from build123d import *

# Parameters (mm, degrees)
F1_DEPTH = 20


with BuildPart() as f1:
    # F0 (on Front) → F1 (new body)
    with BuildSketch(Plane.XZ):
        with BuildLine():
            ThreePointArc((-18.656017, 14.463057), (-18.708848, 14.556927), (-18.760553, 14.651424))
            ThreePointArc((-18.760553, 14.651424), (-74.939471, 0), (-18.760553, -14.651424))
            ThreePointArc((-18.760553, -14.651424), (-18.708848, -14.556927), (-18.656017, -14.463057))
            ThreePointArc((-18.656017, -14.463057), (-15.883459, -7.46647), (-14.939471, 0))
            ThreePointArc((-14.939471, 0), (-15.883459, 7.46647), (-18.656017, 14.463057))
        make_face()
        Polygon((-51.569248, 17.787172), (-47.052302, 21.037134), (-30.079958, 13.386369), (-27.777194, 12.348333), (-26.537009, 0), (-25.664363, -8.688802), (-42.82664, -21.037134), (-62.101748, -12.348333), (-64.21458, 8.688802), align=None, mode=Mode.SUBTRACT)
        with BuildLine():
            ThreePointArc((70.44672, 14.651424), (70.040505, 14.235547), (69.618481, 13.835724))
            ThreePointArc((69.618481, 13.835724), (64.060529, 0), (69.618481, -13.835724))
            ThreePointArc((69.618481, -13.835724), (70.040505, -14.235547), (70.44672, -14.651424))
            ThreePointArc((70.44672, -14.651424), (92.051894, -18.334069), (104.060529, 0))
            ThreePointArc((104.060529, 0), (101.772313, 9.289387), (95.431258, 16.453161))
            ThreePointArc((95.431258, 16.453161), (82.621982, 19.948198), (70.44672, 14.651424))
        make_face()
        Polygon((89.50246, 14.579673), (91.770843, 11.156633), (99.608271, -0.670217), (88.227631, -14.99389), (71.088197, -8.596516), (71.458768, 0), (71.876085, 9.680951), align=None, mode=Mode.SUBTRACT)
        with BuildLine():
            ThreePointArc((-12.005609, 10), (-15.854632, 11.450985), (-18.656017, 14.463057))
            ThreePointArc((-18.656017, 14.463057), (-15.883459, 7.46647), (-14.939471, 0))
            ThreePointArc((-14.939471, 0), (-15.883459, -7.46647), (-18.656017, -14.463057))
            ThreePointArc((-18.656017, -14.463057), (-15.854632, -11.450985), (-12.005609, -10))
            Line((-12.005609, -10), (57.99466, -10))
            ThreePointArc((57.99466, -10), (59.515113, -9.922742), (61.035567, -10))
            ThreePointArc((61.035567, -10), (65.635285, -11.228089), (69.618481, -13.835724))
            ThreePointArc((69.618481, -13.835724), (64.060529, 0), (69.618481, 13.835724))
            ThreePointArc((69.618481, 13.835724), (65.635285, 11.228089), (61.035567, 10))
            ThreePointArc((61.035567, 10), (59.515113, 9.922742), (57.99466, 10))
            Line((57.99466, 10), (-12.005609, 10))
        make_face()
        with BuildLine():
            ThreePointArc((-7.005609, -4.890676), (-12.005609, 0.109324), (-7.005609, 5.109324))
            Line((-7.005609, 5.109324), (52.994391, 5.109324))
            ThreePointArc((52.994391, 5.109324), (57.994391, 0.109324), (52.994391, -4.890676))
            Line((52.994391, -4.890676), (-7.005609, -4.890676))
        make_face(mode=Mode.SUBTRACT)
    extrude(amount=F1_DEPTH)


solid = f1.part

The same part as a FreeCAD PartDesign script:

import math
import FreeCAD as App
import Part
import Sketcher

doc = App.newDocument("Part")
body = doc.addObject("PartDesign::Body", "Body")

# Sketch on XZ plane
sketch1 = body.newObject("Sketcher::SketchObject", "Sketch")
sketch1.AttachmentSupport = (doc.getObject("XZ_Plane"), [""])
sketch1.MapMode = "FlatFace"
sketch1.addGeometry([
    Part.ArcOfCircle(Part.Circle(App.Vector(-10.84, 18.93, 0), App.Vector(0, 0, 1), 9), math.radians(-151.66), math.radians(-150.29)),  # 0
    Part.ArcOfCircle(Part.Circle(App.Vector(-44.94, 0, 0), App.Vector(0, 0, 1), 30), math.radians(29), math.radians(331)),  # 1
    Part.ArcOfCircle(Part.Circle(App.Vector(-10.84, -18.93, 0), App.Vector(0, 0, 1), 9), math.radians(150.29), math.radians(151.66)),  # 2
    Part.ArcOfCircle(Part.Circle(App.Vector(-10.84, -18.92, 0), App.Vector(0, 0, 1), 9), math.radians(97), math.radians(150)),  # 3
    Part.LineSegment(App.Vector(-12.01, -10, 0), App.Vector(57.99, -10, 0)),  # 4
    Part.ArcOfCircle(Part.Circle(App.Vector(59.52, -24.92, 0), App.Vector(0, 0, 1), 15), math.radians(84.18), math.radians(95.82)),  # 5
    Part.ArcOfCircle(Part.Circle(App.Vector(59.52, -24.92, 0), App.Vector(0, 0, 1), 15), math.radians(48), math.radians(84)),  # 6
    Part.ArcOfCircle(Part.Circle(App.Vector(59.52, -24.92, 0), App.Vector(0, 0, 1), 15), math.radians(43.22), math.radians(47.66)),  # 7
    Part.ArcOfCircle(Part.Circle(App.Vector(84.06, 0, 0), App.Vector(0, 0, 1), 20), math.radians(-133), math.radians(0)),  # 8
    Part.ArcOfCircle(Part.Circle(App.Vector(84.06, 0, 0), App.Vector(0, 0, 1), 20), math.radians(0), math.radians(55)),  # 9
    Part.ArcOfCircle(Part.Circle(App.Vector(84.06, 0, 0), App.Vector(0, 0, 1), 20), math.radians(55), math.radians(133)),  # 10
    Part.ArcOfCircle(Part.Circle(App.Vector(59.52, 24.92, 0), App.Vector(0, 0, 1), 15), math.radians(-47.66), math.radians(-43.22)),  # 11
    Part.ArcOfCircle(Part.Circle(App.Vector(59.52, 24.92, 0), App.Vector(0, 0, 1), 15), math.radians(-84), math.radians(-48)),  # 12
    Part.ArcOfCircle(Part.Circle(App.Vector(59.52, 24.92, 0), App.Vector(0, 0, 1), 15), math.radians(-95.82), math.radians(-84.18)),  # 13
    Part.LineSegment(App.Vector(57.99, 10, 0), App.Vector(-12.01, 10, 0)),  # 14
    Part.ArcOfCircle(Part.Circle(App.Vector(-10.84, 18.92, 0), App.Vector(0, 0, 1), 9), math.radians(-150), math.radians(-97)),  # 15
    Part.LineSegment(App.Vector(89.5, 14.58, 0), App.Vector(91.77, 11.16, 0)),  # 16
    Part.LineSegment(App.Vector(91.77, 11.16, 0), App.Vector(99.61, -0.67, 0)),  # 17
    Part.LineSegment(App.Vector(99.61, -0.67, 0), App.Vector(88.23, -14.99, 0)),  # 18
    Part.LineSegment(App.Vector(88.23, -14.99, 0), App.Vector(71.09, -8.6, 0)),  # 19
    Part.LineSegment(App.Vector(71.09, -8.6, 0), App.Vector(71.46, 0, 0)),  # 20
    Part.LineSegment(App.Vector(71.46, 0, 0), App.Vector(71.88, 9.68, 0)),  # 21
    Part.LineSegment(App.Vector(71.88, 9.68, 0), App.Vector(89.5, 14.58, 0)),  # 22
    Part.LineSegment(App.Vector(-64.21, 8.69, 0), App.Vector(-51.57, 17.79, 0)),  # 23
    Part.LineSegment(App.Vector(-51.57, 17.79, 0), App.Vector(-47.05, 21.04, 0)),  # 24
    Part.LineSegment(App.Vector(-47.05, 21.04, 0), App.Vector(-30.08, 13.39, 0)),  # 25
    Part.LineSegment(App.Vector(-30.08, 13.39, 0), App.Vector(-27.78, 12.35, 0)),  # 26
    Part.LineSegment(App.Vector(-27.78, 12.35, 0), App.Vector(-26.54, 0, 0)),  # 27
    Part.LineSegment(App.Vector(-26.54, 0, 0), App.Vector(-25.66, -8.69, 0)),  # 28
    Part.LineSegment(App.Vector(-25.66, -8.69, 0), App.Vector(-42.83, -21.04, 0)),  # 29
    Part.LineSegment(App.Vector(-42.83, -21.04, 0), App.Vector(-62.1, -12.35, 0)),  # 30
    Part.LineSegment(App.Vector(-62.1, -12.35, 0), App.Vector(-64.21, 8.69, 0)),  # 31
    Part.LineSegment(App.Vector(52.99, -4.89, 0), App.Vector(-7.01, -4.89, 0)),  # 32
    Part.ArcOfCircle(Part.Circle(App.Vector(-7.01, 0.11, 0), App.Vector(0, 0, 1), 5), math.radians(90), math.radians(270)),  # 33
    Part.LineSegment(App.Vector(-7.01, 5.11, 0), App.Vector(52.99, 5.11, 0)),  # 34
    Part.ArcOfCircle(Part.Circle(App.Vector(52.99, 0.11, 0), App.Vector(0, 0, 1), 5), math.radians(-90), math.radians(90)),  # 35
], False)
sketch1.addConstraint([
    Sketcher.Constraint("Coincident", 0, 1, 1, 1),
    Sketcher.Constraint("Coincident", 1, 2, 2, 2),
    Sketcher.Constraint("Coincident", 2, 1, 3, 2),
    Sketcher.Constraint("Coincident", 3, 1, 4, 1),
    Sketcher.Constraint("Coincident", 4, 2, 5, 2),
    Sketcher.Constraint("Tangent", 5, 1, 6, 2),
    Sketcher.Constraint("Tangent", 6, 1, 7, 2),
    Sketcher.Constraint("Coincident", 7, 1, 8, 1),
    Sketcher.Constraint("Tangent", 8, 2, 9, 1),
    Sketcher.Constraint("Tangent", 9, 2, 10, 1),
    Sketcher.Constraint("Coincident", 10, 2, 11, 2),
    Sketcher.Constraint("Tangent", 11, 1, 12, 2),
    Sketcher.Constraint("Tangent", 12, 1, 13, 2),
    Sketcher.Constraint("Coincident", 13, 1, 14, 1),
    Sketcher.Constraint("Coincident", 14, 2, 15, 2),
    Sketcher.Constraint("Coincident", 15, 1, 0, 2),
    Sketcher.Constraint("Coincident", 16, 2, 17, 1),
    Sketcher.Constraint("Coincident", 17, 2, 18, 1),
    Sketcher.Constraint("Coincident", 18, 2, 19, 1),
    Sketcher.Constraint("Coincident", 19, 2, 20, 1),
    Sketcher.Constraint("Coincident", 20, 2, 21, 1),
    Sketcher.Constraint("Coincident", 21, 2, 22, 1),
    Sketcher.Constraint("Coincident", 22, 2, 16, 1),
    Sketcher.Constraint("Coincident", 23, 2, 24, 1),
    Sketcher.Constraint("Coincident", 24, 2, 25, 1),
    Sketcher.Constraint("Coincident", 25, 2, 26, 1),
    Sketcher.Constraint("Coincident", 26, 2, 27, 1),
    Sketcher.Constraint("Coincident", 27, 2, 28, 1),
    Sketcher.Constraint("Coincident", 28, 2, 29, 1),
    Sketcher.Constraint("Coincident", 29, 2, 30, 1),
    Sketcher.Constraint("Coincident", 30, 2, 31, 1),
    Sketcher.Constraint("Coincident", 31, 2, 23, 1),
    Sketcher.Constraint("Tangent", 32, 2, 33, 2),
    Sketcher.Constraint("Tangent", 33, 1, 34, 1),
    Sketcher.Constraint("Tangent", 34, 2, 35, 2),
    Sketcher.Constraint("Tangent", 35, 1, 32, 1),
    Sketcher.Constraint("Horizontal", 4),
    Sketcher.Constraint("Horizontal", 14),
    Sketcher.Constraint("Horizontal", 32),
    Sketcher.Constraint("Horizontal", 34),
    Sketcher.Constraint("Coincident", 10, 3, 8, 3),
    Sketcher.Constraint("Equal", 0, 2),
    Sketcher.Constraint("Equal", 7, 11),
    Sketcher.Constraint("Equal", 6, 12),
    Sketcher.Constraint("Equal", 5, 13),
    Sketcher.Constraint("Equal", 3, 15),
    Sketcher.Constraint("Symmetric", 0, 3, 2, 3, -1),
    Sketcher.Constraint("Symmetric", 7, 3, 11, 3, -1),
    Sketcher.Constraint("Symmetric", 3, 1, 14, 2, -1),
    Sketcher.Constraint("PointOnObject", 1, 3, -1),
    Sketcher.Constraint("PointOnObject", 8, 3, -1),
    Sketcher.Constraint("PointOnObject", 8, 2, -1),
    Sketcher.Constraint("PointOnObject", 20, 2, -1),
    Sketcher.Constraint("PointOnObject", 27, 2, -1),
    Sketcher.Constraint("Parallel", 16, 17),
    Sketcher.Constraint("Parallel", 20, 21),
    Sketcher.Constraint("Parallel", 23, 24),
    Sketcher.Constraint("Parallel", 25, 26),
    Sketcher.Constraint("Parallel", 27, 28),
    Sketcher.Constraint("Parallel", 24, 29),
    Sketcher.Constraint("Parallel", 26, 30),
    Sketcher.Constraint("Parallel", 28, 31),
    Sketcher.Constraint("Horizontal", 4, 2, 5, 1),
    Sketcher.Constraint("Horizontal", 1, 2, 7, 1),
    Sketcher.Constraint("Horizontal", 12, 1, 13, 1),
    Sketcher.Constraint("Vertical", 6, 1, 11, 1),
    Sketcher.Constraint("Vertical", 2, 1, 15, 1),
    Sketcher.Constraint("Equal", 18, 19),
    Sketcher.Constraint("Equal", 19, 22),
    Sketcher.Constraint("Equal", 29, 30),
    Sketcher.Constraint("Equal", 30, 31),
    Sketcher.Constraint("Radius", 1, 30.0),
    Sketcher.Constraint("Radius", 8, 20.0),
    Sketcher.Constraint("Radius", 33, 5.0),
    Sketcher.Constraint("DistanceX", 32, 2, 32, 1, 60.0),
    Sketcher.Constraint("DistanceY", 3, 1, -1, 1, 10.0),
    Sketcher.Constraint("DistanceX", 3, 1, 33, 3, 5.0),
    Sketcher.Constraint("Radius", 5, 15.000049),
    Sketcher.Constraint("Radius", 6, 14.999991),
    Sketcher.Constraint("Radius", 0, 9.002874),
    Sketcher.Constraint("Radius", 3, 9.000003),
    Sketcher.Constraint("Radius", 7, 14.999794),
    Sketcher.Constraint("Distance", 20, 8.604499),
    Sketcher.Constraint("DistanceX", 4, 1, 4, 2, 70.000269),
    Sketcher.Constraint("DistanceX", 24, 2, -1, 1, 47.052302),
    Sketcher.Constraint("DistanceY", 33, 3, 0, 3, 18.816198),
    Sketcher.Constraint("DistanceY", 0, 1, 0, 3, 4.274098),
    Sketcher.Constraint("DistanceY", 7, 1, 6, 1, 0.8157),
    Sketcher.Constraint("DistanceX", 9, 3, 18, 2, 4.1671),
    Sketcher.Constraint("DistanceX", 22, 2, 9, 2, 5.928798),
    Sketcher.Constraint("DistanceY", 29, 2, 30, 2, 8.688801),
    Sketcher.Constraint("DistanceX", 30, 2, 23, 2, 10.5325),
    Sketcher.Constraint("Distance", 16, 4.10643),
    Sketcher.Constraint("Distance", 17, 14.188011),
    Sketcher.Constraint("Distance", 18, 18.294441),
    Sketcher.Constraint("Distance", 21, 9.689941),
    Sketcher.Constraint("Distance", 31, 21.142968),
    Sketcher.Constraint("DistanceX", 0, 3, -1, 1, 10.836928),
    Sketcher.Constraint("DistanceX", 1, 3, -1, 1, 44.939471),
    Sketcher.Constraint("DistanceX", 3, 3, -1, 1, 10.83944),
    Sketcher.Constraint("DistanceY", 5, 3, -1, 1, 24.922791),
    Sketcher.Constraint("DistanceX", -1, 1, 9, 2, 95.431258),
    Sketcher.Constraint("DistanceX", -1, 1, 17, 2, 99.608271),
    Sketcher.Constraint("DistanceY", 18, 2, -1, 1, 14.99389),
    Sketcher.Constraint("DistanceX", 23, 2, -1, 1, 51.569248),
    Sketcher.Constraint("DistanceX", 25, 2, -1, 1, 30.079958),
    Sketcher.Constraint("DistanceY", -1, 1, 25, 2, 13.386369),
    Sketcher.Constraint("DistanceX", 27, 2, -1, 1, 26.537009),
    Sketcher.Constraint("DistanceX", 31, 2, -1, 1, 64.21458),
    Sketcher.Constraint("DistanceX", 2, 1, 2, 3, 7.819089),
])
pad1 = body.newObject("PartDesign::Pad", "Pad")
pad1.Profile = sketch1
pad1.Length = 20

doc.recompute()
